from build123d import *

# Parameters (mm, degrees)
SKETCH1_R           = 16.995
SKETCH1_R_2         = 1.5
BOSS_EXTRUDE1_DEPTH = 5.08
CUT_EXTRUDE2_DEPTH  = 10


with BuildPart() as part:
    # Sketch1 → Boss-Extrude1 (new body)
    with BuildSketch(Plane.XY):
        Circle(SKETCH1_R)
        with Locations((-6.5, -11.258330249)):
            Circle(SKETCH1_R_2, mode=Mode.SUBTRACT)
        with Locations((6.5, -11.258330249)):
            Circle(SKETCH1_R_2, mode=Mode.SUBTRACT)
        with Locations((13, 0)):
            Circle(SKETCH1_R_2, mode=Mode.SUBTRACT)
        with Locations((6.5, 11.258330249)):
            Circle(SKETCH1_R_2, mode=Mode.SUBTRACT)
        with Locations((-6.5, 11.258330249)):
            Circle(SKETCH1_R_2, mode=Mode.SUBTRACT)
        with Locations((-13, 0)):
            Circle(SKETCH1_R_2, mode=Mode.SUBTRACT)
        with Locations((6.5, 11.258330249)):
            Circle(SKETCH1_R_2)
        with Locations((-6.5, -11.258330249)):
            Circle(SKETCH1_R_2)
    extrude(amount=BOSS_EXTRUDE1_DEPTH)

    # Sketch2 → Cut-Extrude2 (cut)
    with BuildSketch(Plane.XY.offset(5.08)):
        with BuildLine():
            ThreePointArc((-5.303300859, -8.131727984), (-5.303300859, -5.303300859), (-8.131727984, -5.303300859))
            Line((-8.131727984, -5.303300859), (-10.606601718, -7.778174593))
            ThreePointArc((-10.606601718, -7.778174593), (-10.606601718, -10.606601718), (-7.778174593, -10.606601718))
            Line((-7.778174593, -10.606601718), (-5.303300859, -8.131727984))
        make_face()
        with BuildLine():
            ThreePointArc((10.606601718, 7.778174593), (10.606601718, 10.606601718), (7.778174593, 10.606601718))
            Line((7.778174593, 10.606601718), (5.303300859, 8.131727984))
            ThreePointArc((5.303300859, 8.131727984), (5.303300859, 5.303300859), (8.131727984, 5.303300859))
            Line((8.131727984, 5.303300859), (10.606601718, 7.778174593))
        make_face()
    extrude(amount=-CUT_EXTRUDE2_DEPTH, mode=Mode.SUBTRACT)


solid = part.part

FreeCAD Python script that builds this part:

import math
import FreeCAD as App
import Part
import Sketcher
from FreeCAD import Vector
Q = App.Units.Quantity

doc = App.newDocument("Part")
body = doc.addObject("PartDesign::Body", "Body")

sketch1 = body.newObject("Sketcher::SketchObject", "Sketch")
sketch1.AttachmentSupport = (doc.getObject("XY_Plane"), [""])
sketch1.MapMode = "FlatFace"
sketch1.addGeometry([
    Part.Circle(Vector(0, 0, 0), Vector(0, 0, 1), 17),
    Part.Circle(Vector(6.5, -11.3, 0), Vector(0, 0, 1), 1.5),
    Part.Circle(Vector(-13, 0, 0), Vector(0, 0, 1), 1.5),
    Part.Circle(Vector(-6.5, 11.3, 0), Vector(0, 0, 1), 1.5),
    Part.Circle(Vector(13, 0, 0), Vector(0, 0, 1), 1.5),
], False)
sketch1.addConstraint([
    Sketcher.Constraint("Coincident", 0, 3, -1, 1),
    Sketcher.Constraint("Equal", 1, 2),
    Sketcher.Constraint("Equal", 2, 3),
    Sketcher.Constraint("Equal", 3, 4),
    Sketcher.Constraint("Symmetric", 1, 3, 3, 3, -1, 1),
    Sketcher.Constraint("Symmetric", 2, 3, 4, 3, -1, 1),
    Sketcher.Constraint("PointOnObject", 2, 3, -1),
    Sketcher.Constraint("Diameter", 1, 3.0),
    Sketcher.Constraint("Diameter", 0, 33.99),
    Sketcher.Constraint("DistanceX", 2, 3, -1, 1, 13.0),
    Sketcher.Constraint("DistanceX", 3, 3, 1, 3, 13.0),
    Sketcher.Constraint("DistanceY", 1, 3, -1, 1, 11.25833),
])
pad1 = body.newObject("PartDesign::Pad", "Pad")
pad1.Profile = sketch1
pad1.Length = 5.08

sketch2 = body.newObject("Sketcher::SketchObject", "Sketch001")
sketch2.AttachmentSupport = (doc.getObject("XY_Plane"), [""])
sketch2.MapMode = "FlatFace"
sketch2.AttachmentOffset = App.Placement(Vector(0, 0, 5.08), App.Rotation())
sketch2.addGeometry([
    Part.ArcOfCircle(Part.Circle(Vector(-6.7, -6.7, 0), Vector(0, 0, 1), 2), math.radians(-45), math.radians(135)),
    Part.LineSegment(Vector(-8.1, -5.3, 0), Vector(-10.6, -7.8, 0)),
    Part.ArcOfCircle(Part.Circle(Vector(-9.2, -9.2, 0), Vector(0, 0, 1), 2), math.radians(135), math.radians(315)),
    Part.LineSegment(Vector(-7.8, -10.6, 0), Vector(-5.3, -8.1, 0)),
    Part.ArcOfCircle(Part.Circle(Vector(9.2, 9.2, 0), Vector(0, 0, 1), 2), math.radians(-45), math.radians(135)),
    Part.LineSegment(Vector(7.8, 10.6, 0), Vector(5.3, 8.1, 0)),
    Part.ArcOfCircle(Part.Circle(Vector(6.7, 6.7, 0), Vector(0, 0, 1), 2), math.radians(135), math.radians(315)),
    Part.LineSegment(Vector(8.1, 5.3, 0), Vector(10.6, 7.8, 0)),
], False)
sketch2.addConstraint([
    Sketcher.Constraint("Tangent", 0, 2, 1, 1),
    Sketcher.Constraint("Tangent", 1, 2, 2, 1),
    Sketcher.Constraint("Tangent", 2, 2, 3, 1),
    Sketcher.Constraint("Tangent", 3, 2, 0, 1),
    Sketcher.Constraint("Tangent", 4, 2, 5, 1),
    Sketcher.Constraint("Tangent", 5, 2, 6, 1),
    Sketcher.Constraint("Tangent", 6, 2, 7, 1),
    Sketcher.Constraint("Tangent", 7, 2, 4, 1),
    Sketcher.Constraint("Equal", 0, 2),
    Sketcher.Constraint("Equal", 2, 4),
    Sketcher.Constraint("Equal", 4, 6),
    Sketcher.Constraint("Symmetric", 2, 3, 4, 3, -1, 1),
    Sketcher.Constraint("Symmetric", 0, 3, 6, 3, -1, 1),
    Sketcher.Constraint("Radius", 0, 2.0),
    Sketcher.Constraint("Angle", 1, Q("-135 deg")),
    Sketcher.Constraint("Distance", 1, 3.5),
    Sketcher.Constraint("DistanceY", 0, 2, -1, 1, 5.303301),
    Sketcher.Constraint("DistanceX", 1, 2, -1, 1, 10.606602),
])
pocket1 = body.newObject("PartDesign::Pocket", "Pocket")
pocket1.Profile = sketch2
pocket1.Length = 10

doc.recompute()
